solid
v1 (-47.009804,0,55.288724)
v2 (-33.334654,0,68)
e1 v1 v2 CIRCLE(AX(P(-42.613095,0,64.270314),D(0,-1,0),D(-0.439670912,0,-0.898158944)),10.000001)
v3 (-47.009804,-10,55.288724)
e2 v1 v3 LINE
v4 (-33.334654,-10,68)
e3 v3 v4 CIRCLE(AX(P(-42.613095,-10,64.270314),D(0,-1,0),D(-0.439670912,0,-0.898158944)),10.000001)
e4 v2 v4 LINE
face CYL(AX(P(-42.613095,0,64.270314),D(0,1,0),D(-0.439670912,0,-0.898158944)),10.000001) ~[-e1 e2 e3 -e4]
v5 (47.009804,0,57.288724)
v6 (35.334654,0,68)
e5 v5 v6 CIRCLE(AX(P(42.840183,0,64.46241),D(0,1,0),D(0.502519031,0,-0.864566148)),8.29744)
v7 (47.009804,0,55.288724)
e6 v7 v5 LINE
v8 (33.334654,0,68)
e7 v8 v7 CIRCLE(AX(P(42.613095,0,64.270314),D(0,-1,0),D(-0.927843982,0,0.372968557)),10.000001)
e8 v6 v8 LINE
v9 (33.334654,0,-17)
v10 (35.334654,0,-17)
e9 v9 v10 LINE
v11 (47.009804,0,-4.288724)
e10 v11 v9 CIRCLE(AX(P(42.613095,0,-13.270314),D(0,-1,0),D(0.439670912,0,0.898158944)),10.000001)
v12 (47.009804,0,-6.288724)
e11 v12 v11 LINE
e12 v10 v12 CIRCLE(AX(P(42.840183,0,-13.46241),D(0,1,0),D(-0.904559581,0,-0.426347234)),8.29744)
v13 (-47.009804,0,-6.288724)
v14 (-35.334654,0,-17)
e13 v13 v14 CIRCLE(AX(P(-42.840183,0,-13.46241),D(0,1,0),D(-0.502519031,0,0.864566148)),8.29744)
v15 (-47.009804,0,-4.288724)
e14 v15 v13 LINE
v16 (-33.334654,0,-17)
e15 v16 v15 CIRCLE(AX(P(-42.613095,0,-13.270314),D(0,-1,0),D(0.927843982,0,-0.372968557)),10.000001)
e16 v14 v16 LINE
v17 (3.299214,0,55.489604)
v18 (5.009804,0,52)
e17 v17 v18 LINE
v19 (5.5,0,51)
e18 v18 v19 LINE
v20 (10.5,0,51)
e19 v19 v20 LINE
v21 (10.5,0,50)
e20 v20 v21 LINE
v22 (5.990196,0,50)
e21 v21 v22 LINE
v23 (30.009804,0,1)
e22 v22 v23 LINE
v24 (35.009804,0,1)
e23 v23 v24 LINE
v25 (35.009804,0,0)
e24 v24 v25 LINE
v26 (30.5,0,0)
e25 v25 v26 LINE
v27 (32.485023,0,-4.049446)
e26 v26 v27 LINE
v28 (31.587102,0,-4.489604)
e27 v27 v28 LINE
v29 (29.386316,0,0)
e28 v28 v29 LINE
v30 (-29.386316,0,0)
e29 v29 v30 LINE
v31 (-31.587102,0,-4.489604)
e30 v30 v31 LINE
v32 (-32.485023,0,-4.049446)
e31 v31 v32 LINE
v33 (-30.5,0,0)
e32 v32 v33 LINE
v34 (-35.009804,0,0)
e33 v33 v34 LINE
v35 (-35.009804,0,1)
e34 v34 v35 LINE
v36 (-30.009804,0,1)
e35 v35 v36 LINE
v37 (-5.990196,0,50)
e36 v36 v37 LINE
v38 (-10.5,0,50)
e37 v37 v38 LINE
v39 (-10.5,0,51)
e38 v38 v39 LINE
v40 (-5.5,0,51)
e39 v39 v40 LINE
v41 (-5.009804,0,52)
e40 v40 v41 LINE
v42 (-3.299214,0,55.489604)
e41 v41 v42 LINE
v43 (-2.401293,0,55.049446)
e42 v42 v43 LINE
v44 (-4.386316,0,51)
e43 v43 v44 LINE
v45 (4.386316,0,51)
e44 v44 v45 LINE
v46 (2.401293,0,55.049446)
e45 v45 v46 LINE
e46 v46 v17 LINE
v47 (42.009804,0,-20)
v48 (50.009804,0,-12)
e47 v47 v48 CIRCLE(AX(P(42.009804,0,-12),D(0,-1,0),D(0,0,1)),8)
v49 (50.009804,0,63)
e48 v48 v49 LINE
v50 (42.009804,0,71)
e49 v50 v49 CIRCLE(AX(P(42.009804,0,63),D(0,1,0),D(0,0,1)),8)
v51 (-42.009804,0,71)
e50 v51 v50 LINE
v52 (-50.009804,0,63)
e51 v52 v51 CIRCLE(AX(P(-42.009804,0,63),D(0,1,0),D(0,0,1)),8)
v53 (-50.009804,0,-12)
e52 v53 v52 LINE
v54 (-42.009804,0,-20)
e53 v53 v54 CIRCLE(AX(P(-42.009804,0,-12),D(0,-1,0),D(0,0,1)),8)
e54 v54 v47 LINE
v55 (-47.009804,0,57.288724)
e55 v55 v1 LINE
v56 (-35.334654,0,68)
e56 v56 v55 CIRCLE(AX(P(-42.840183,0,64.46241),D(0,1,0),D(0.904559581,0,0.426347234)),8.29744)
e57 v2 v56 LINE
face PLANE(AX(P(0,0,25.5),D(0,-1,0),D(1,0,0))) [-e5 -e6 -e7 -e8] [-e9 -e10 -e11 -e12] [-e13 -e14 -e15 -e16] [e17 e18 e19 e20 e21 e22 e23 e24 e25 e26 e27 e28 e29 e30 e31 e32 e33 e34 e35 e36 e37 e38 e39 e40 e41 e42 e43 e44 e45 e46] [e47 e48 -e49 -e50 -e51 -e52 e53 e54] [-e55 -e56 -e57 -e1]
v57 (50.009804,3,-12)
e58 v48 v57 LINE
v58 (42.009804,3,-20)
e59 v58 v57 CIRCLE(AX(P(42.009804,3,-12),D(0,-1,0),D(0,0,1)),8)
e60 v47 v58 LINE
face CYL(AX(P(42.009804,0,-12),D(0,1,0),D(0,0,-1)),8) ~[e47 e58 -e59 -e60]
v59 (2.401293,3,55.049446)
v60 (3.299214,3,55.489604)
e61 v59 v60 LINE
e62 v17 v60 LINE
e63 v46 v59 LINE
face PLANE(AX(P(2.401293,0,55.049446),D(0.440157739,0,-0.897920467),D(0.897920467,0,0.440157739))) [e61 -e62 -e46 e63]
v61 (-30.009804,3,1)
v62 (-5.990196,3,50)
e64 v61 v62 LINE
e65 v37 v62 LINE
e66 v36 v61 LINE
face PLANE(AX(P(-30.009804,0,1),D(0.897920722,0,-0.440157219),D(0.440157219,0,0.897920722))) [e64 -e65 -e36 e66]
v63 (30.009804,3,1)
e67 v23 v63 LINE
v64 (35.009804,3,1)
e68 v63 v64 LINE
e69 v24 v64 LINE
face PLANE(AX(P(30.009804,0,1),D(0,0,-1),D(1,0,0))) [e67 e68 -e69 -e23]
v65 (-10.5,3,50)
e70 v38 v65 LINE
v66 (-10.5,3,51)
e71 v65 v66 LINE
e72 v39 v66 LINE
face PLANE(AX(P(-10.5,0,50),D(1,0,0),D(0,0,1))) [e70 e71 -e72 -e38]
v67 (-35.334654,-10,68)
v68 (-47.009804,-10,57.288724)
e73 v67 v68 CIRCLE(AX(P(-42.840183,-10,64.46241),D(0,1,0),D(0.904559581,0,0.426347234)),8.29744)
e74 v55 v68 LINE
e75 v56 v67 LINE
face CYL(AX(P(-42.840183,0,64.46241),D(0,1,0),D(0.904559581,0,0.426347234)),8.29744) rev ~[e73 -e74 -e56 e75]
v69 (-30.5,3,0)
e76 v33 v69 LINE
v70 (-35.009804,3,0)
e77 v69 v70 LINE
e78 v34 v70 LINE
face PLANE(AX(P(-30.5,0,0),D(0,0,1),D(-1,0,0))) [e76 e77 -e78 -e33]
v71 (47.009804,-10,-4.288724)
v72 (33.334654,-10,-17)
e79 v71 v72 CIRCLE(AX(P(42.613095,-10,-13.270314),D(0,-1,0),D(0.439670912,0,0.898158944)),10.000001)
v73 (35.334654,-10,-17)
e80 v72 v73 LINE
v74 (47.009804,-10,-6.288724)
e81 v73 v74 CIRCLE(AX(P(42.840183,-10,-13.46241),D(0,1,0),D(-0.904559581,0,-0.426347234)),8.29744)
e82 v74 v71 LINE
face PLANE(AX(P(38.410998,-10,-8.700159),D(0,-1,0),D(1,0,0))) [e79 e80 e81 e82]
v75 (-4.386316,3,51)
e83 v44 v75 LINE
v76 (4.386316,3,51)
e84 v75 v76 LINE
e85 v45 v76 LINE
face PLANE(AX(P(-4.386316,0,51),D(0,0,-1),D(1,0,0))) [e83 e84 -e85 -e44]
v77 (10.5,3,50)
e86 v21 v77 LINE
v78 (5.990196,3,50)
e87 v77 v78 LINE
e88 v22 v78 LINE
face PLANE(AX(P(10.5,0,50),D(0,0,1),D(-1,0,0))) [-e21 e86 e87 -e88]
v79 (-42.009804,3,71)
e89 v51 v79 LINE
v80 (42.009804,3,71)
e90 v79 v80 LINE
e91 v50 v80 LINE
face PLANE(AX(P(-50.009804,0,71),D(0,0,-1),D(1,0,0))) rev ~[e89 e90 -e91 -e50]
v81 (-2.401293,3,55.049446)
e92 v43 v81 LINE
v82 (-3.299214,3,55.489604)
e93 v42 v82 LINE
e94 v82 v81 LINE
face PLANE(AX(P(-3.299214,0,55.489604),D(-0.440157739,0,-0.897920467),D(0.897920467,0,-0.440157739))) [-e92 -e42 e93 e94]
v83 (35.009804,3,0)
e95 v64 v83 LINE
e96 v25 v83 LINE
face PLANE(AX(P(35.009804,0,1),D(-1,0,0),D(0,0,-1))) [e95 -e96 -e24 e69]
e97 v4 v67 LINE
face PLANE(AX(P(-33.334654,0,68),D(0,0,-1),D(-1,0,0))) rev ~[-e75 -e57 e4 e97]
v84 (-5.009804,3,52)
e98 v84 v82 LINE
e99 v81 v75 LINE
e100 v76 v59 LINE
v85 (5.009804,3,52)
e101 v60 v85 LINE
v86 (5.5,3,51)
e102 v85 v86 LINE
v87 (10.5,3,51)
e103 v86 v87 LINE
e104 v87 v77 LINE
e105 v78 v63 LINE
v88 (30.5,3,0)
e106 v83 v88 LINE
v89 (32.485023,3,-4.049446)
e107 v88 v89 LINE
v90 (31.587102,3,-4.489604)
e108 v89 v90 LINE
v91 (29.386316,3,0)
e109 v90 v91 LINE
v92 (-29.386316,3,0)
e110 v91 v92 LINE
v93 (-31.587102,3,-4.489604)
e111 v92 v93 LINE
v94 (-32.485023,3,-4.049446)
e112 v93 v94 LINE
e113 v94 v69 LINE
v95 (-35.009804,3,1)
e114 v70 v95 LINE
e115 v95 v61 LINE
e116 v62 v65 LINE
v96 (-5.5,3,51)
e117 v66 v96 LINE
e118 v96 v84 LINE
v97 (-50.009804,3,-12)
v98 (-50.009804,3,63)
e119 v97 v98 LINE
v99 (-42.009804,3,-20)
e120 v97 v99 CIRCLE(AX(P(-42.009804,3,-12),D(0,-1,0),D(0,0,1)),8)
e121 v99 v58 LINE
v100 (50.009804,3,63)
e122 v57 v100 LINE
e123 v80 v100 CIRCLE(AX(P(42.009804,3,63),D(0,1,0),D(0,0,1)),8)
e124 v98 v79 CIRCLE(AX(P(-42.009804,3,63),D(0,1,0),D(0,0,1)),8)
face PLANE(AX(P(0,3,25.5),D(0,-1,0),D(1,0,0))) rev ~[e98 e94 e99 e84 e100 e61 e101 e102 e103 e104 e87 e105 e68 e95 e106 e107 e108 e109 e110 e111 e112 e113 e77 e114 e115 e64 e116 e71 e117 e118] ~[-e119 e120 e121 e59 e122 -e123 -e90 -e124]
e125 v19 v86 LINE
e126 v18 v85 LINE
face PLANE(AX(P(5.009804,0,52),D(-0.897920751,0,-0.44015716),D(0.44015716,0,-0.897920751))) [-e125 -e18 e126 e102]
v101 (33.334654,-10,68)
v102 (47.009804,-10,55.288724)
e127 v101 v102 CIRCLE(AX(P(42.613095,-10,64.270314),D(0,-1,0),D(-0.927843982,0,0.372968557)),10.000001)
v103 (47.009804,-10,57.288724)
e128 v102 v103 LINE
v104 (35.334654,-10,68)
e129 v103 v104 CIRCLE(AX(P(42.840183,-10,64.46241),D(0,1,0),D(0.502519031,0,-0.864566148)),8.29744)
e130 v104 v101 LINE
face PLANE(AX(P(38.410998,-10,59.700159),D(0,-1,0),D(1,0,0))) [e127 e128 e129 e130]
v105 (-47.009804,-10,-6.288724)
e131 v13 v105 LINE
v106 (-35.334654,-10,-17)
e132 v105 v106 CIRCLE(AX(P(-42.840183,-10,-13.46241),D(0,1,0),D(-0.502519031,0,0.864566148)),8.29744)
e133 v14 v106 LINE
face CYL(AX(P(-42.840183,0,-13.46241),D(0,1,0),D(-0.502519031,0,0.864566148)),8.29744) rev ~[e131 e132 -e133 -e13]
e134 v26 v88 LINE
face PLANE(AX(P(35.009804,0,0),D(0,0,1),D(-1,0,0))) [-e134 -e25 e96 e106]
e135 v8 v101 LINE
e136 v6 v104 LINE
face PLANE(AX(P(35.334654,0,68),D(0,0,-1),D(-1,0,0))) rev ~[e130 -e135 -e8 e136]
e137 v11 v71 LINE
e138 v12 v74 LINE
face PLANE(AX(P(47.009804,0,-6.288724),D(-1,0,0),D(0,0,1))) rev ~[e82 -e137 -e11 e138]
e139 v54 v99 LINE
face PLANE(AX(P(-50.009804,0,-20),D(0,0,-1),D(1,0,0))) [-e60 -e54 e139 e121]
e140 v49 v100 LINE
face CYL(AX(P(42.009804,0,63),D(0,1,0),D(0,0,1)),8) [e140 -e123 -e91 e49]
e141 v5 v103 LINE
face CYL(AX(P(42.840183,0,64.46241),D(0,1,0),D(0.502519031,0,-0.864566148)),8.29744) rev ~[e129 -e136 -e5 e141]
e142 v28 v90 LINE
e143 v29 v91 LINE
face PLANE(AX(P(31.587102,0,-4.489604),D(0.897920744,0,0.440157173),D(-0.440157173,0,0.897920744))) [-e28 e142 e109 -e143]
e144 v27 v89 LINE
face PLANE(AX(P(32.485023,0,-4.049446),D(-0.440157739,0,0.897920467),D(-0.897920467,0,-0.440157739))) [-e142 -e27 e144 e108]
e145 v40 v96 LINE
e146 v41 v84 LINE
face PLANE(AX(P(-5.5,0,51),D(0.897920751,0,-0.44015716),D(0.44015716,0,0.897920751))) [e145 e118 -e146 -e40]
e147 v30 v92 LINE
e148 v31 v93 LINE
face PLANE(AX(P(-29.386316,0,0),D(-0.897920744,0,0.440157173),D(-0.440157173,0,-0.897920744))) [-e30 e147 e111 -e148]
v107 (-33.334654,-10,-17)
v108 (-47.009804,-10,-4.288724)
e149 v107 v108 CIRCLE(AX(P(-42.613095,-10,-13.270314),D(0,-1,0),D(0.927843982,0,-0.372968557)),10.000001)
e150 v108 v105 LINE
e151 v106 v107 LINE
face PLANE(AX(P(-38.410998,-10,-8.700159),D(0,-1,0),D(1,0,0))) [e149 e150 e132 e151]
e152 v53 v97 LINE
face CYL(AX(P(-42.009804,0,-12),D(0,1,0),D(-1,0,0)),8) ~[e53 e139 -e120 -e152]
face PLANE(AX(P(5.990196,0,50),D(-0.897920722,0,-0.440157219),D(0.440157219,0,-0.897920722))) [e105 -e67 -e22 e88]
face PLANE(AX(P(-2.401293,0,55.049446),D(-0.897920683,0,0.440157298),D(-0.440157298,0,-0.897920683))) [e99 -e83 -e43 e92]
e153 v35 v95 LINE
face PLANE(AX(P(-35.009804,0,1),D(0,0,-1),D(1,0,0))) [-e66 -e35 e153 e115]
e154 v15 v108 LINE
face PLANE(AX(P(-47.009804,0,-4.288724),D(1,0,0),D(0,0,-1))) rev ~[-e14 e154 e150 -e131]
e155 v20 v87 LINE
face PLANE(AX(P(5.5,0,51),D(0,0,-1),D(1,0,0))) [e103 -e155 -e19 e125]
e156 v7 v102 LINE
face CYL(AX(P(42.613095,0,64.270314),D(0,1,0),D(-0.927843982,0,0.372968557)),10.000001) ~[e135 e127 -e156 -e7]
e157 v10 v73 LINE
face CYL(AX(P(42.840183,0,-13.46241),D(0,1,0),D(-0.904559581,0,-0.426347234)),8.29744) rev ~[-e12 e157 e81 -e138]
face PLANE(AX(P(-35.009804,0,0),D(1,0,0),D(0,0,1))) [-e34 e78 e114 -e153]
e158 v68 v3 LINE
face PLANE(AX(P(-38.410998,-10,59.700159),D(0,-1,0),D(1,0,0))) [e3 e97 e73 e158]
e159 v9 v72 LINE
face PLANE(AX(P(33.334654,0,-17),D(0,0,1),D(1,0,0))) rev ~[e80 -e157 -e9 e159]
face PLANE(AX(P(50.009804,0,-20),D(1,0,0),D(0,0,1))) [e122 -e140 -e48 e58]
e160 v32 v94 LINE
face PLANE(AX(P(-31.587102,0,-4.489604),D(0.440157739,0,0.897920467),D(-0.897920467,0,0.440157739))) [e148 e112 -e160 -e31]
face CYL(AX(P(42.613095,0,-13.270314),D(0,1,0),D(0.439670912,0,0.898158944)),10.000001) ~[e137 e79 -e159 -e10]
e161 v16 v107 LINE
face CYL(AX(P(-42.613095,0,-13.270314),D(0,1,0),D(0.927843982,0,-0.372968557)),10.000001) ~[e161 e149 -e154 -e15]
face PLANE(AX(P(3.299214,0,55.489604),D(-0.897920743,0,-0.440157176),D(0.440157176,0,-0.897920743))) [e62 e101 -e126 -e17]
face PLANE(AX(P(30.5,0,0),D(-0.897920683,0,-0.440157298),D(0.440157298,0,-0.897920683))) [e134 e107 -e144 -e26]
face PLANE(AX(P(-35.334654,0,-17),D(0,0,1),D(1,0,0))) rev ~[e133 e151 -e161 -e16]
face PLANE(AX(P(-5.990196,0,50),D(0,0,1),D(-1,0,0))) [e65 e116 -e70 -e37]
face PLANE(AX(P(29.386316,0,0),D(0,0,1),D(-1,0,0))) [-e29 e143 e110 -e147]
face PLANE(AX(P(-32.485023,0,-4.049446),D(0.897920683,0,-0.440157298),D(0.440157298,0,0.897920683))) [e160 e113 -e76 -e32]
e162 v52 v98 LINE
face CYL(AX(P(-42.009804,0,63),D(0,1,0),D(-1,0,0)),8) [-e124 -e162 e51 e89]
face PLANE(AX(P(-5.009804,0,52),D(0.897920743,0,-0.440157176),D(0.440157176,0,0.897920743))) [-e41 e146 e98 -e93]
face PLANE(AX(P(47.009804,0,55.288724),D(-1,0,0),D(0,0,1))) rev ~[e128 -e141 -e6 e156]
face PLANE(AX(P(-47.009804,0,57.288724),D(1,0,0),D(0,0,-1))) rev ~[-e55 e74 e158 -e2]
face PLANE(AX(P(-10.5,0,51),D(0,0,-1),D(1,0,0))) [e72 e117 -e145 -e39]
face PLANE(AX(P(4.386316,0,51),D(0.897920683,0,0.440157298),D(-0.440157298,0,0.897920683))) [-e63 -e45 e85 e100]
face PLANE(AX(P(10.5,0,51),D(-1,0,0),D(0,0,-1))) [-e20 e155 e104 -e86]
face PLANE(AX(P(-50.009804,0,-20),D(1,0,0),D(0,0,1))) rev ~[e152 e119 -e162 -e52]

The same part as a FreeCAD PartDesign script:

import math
import FreeCAD as App
import Part
import Sketcher

V = App.Vector


def edges_at(feature, points):
    """Names of the edges that pass closest to the given points."""
    edges = feature.Shape.Edges
    near = lambda p: min(range(len(edges)), key=lambda i: edges[i].distToShape(Part.Vertex(*p))[0])
    return sorted({f"Edge{near(p) + 1}" for p in points})


def add_polygon(sketch, points):
    """Adds a closed chain of lines whose ends are joined by coincident constraints."""
    first, n = sketch.GeometryCount, len(points)
    for a, b in zip(points, points[1:] + points[:1]):
        sketch.addGeometry(Part.LineSegment(App.Vector(*a, 0), App.Vector(*b, 0)), False)
    for i in range(n):
        sketch.addConstraint(Sketcher.Constraint("Coincident", first + i, 2, first + (i + 1) % n, 1))

doc = App.newDocument("Part")
body = doc.addObject("PartDesign::Body", "Body")

# Sketch on XZ plane
sketch1 = doc.addObject("Sketcher::SketchObject", "Sketch")
body.addObject(sketch1)
sketch1.AttachmentSupport = (doc.XZ_Plane, [""])
sketch1.MapMode = "FlatFace"
add_polygon(sketch1, [(-50, 71), (-50, -20), (50, -20), (50, 71)])  # lines 0-3
add_polygon(sketch1, [(29.4, 0), (-29.4, 0), (-31.6, -4.5), (-32.5, -4), (-30.5, 0), (-35, 0), (-35, 1), (-30, 1), (-6, 50), (-10.5, 50), (-10.5, 51), (-5.5, 51), (-5, 52), (-3.3, 55.5), (-2.4, 55), (-4.4, 51), (4.4, 51), (2.4, 55), (3.3, 55.5), (5, 52), (5.5, 51), (10.5, 51), (10.5, 50), (6, 50), (30, 1), (35, 1), (35, 0), (30.5, 0), (32.5, -4), (31.6, -4.5)])  # lines 4-33
sketch1.addConstraint([
    Sketcher.Constraint("Vertical", 0),
    Sketcher.Constraint("Horizontal", 1),
    Sketcher.Constraint("Vertical", 2),
    Sketcher.Constraint("Horizontal", 3),
    Sketcher.Constraint("Horizontal", 4),
    Sketcher.Constraint("Horizontal", 8),
    Sketcher.Constraint("Vertical", 9),
    Sketcher.Constraint("Horizontal", 10),
    Sketcher.Constraint("Horizontal", 12),
    Sketcher.Constraint("Vertical", 13),
    Sketcher.Constraint("Horizontal", 14),
    Sketcher.Constraint("Horizontal", 19),
    Sketcher.Constraint("Horizontal", 24),
    Sketcher.Constraint("Vertical", 25),
    Sketcher.Constraint("Horizontal", 26),
    Sketcher.Constraint("Horizontal", 28),
    Sketcher.Constraint("Vertical", 29),
    Sketcher.Constraint("Horizontal", 30),
    Sketcher.Constraint("Symmetric", 8, 2, 29, 2, -1, 1),
    Sketcher.Constraint("Symmetric", 4, 2, 33, 2, -1, 1),
    Sketcher.Constraint("Symmetric", 17, 2, 20, 2, -2),
    Sketcher.Constraint("Symmetric", 16, 2, 21, 2, -2),
    Sketcher.Constraint("Symmetric", 15, 2, 22, 2, -2),
    Sketcher.Constraint("Symmetric", 14, 2, 23, 2, -2),
    Sketcher.Constraint("Symmetric", 12, 2, 25, 2, -2),
    Sketcher.Constraint("Symmetric", 10, 2, 27, 2, -2),
    Sketcher.Constraint("Symmetric", 7, 2, 30, 2, -2),
    Sketcher.Constraint("Symmetric", 6, 2, 31, 2, -2),
    Sketcher.Constraint("Symmetric", 5, 2, 32, 2, -2),
    Sketcher.Constraint("Perpendicular", 5, 6),
    Sketcher.Constraint("Perpendicular", 6, 7),
    Sketcher.Constraint("Parallel", 7, 11),
    Sketcher.Constraint("Parallel", 11, 15),
    Sketcher.Constraint("Parallel", 15, 16),
    Sketcher.Constraint("Perpendicular", 16, 17),
    Sketcher.Constraint("Perpendicular", 17, 18),
    Sketcher.Constraint("Perpendicular", 20, 21),
    Sketcher.Constraint("Parallel", 23, 27),
    Sketcher.Constraint("Horizontal", 14, 2, 18, 2),
    Sketcher.Constraint("Equal", 8, 12),
    Sketcher.Constraint("Equal", 10, 14),
    Sketcher.Constraint("Equal", 9, 13),
    Sketcher.Constraint("Equal", 6, 17),
    Sketcher.Constraint("Equal", 7, 18),
    Sketcher.Constraint("DistanceX", 10, 1, 10, 2, 5.0),
    Sketcher.Constraint("DistanceY", 0, 2, 0, 1, 91.0),
    Sketcher.Constraint("DistanceY", 9, 1, 9, 2, 1.0),
    Sketcher.Constraint("Distance", 5, 5.0),
    Sketcher.Constraint("Distance", 6, 1.000001),
    Sketcher.Constraint("DistanceY", 0, 2, -1, 1, 20.0),
    Sketcher.Constraint("DistanceY", -1, 1, 11, 2, 50.0),
    Sketcher.Constraint("DistanceY", -1, 1, 15, 2, 52.0),
    Sketcher.Constraint("DistanceX", 0, 2, 8, 2, 15.0),
    Sketcher.Constraint("DistanceX", 7, 2, 12, 2, 20.0),
    Sketcher.Constraint("DistanceX", 3, 2, 15, 2, 45.0),
    Sketcher.Constraint("DistanceX", 27, 2, 1, 2, 20.0),
    Sketcher.Constraint("DistanceX", 7, 2, -1, 1, 30.5),
])
pad1 = doc.addObject("PartDesign::Pad", "Pad")
body.addObject(pad1)
pad1.Profile = sketch1
pad1.Length = 3
pad1.Reversed = True

# Sketch on XZ plane
sketch2 = doc.addObject("Sketcher::SketchObject", "Sketch001")
body.addObject(sketch2)
sketch2.AttachmentSupport = (doc.XZ_Plane, [""])
sketch2.MapMode = "FlatFace"
sketch2.addGeometry([
    Part.LineSegment(V(-35.3, -17, 0), V(-33.3, -17, 0)),  # 0
    Part.ArcOfCircle(Part.Circle(V(-42.6, -13.3, 0), V(0, 0, 1), 10), math.radians(-22), math.radians(116)),  # 1
    Part.LineSegment(V(-47, -4.3, 0), V(-47, -6.3, 0)),  # 2
    Part.ArcOfCircle(Part.Circle(V(-42.8, -13.5, 0), V(0, 0, 1), 8.3), math.radians(-25), math.radians(120)),  # 3
    Part.ArcOfCircle(Part.Circle(V(-42.6, 64.3, 0), V(0, 0, 1), 10), math.radians(-116), math.radians(22)),  # 4
    Part.LineSegment(V(-33.3, 68, 0), V(-35.3, 68, 0)),  # 5
    Part.ArcOfCircle(Part.Circle(V(-42.8, 64.5, 0), V(0, 0, 1), 8.3), math.radians(-120), math.radians(25)),  # 6
    Part.LineSegment(V(-47, 57.3, 0), V(-47, 55.3, 0)),  # 7
    Part.LineSegment(V(35.3, 68, 0), V(33.3, 68, 0)),  # 8
    Part.ArcOfCircle(Part.Circle(V(42.6, 64.3, 0), V(0, 0, 1), 10), math.radians(158), math.radians(296)),  # 9
    Part.LineSegment(V(47, 55.3, 0), V(47, 57.3, 0)),  # 10
    Part.ArcOfCircle(Part.Circle(V(42.8, 64.5, 0), V(0, 0, 1), 8.3), math.radians(155), math.radians(300)),  # 11
    Part.ArcOfCircle(Part.Circle(V(42.6, -13.3, 0), V(0, 0, 1), 10), math.radians(64), math.radians(202)),  # 12
    Part.LineSegment(V(33.3, -17, 0), V(35.3, -17, 0)),  # 13
    Part.ArcOfCircle(Part.Circle(V(42.8, -13.5, 0), V(0, 0, 1), 8.3), math.radians(60), math.radians(205)),  # 14
    Part.LineSegment(V(47, -6.3, 0), V(47, -4.3, 0)),  # 15
], False)
sketch2.addConstraint([
    Sketcher.Constraint("Coincident", 0, 2, 1, 1),
    Sketcher.Constraint("Coincident", 1, 2, 2, 1),
    Sketcher.Constraint("Coincident", 2, 2, 3, 2),
    Sketcher.Constraint("Coincident", 3, 1, 0, 1),
    Sketcher.Constraint("Coincident", 4, 2, 5, 1),
    Sketcher.Constraint("Coincident", 5, 2, 6, 2),
    Sketcher.Constraint("Coincident", 6, 1, 7, 1),
    Sketcher.Constraint("Coincident", 7, 2, 4, 1),
    Sketcher.Constraint("Coincident", 8, 2, 9, 1),
    Sketcher.Constraint("Coincident", 9, 2, 10, 1),
    Sketcher.Constraint("Coincident", 10, 2, 11, 2),
    Sketcher.Constraint("Coincident", 11, 1, 8, 1),
    Sketcher.Constraint("Coincident", 12, 2, 13, 1),
    Sketcher.Constraint("Coincident", 13, 2, 14, 2),
    Sketcher.Constraint("Coincident", 14, 1, 15, 1),
    Sketcher.Constraint("Coincident", 15, 2, 12, 1),
    Sketcher.Constraint("Horizontal", 0),
    Sketcher.Constraint("Vertical", 2),
    Sketcher.Constraint("Horizontal", 5),
    Sketcher.Constraint("Vertical", 7),
    Sketcher.Constraint("Horizontal", 8),
    Sketcher.Constraint("Vertical", 10),
    Sketcher.Constraint("Horizontal", 13),
    Sketcher.Constraint("Vertical", 15),
    Sketcher.Constraint("Equal", 1, 4),
    Sketcher.Constraint("Equal", 3, 6),
    Sketcher.Constraint("Equal", 4, 9),
    Sketcher.Constraint("Equal", 6, 11),
    Sketcher.Constraint("Equal", 9, 12),
    Sketcher.Constraint("Equal", 11, 14),
    Sketcher.Constraint("Symmetric", 4, 3, 9, 3, -2),
    Sketcher.Constraint("Symmetric", 6, 3, 11, 3, -2),
    Sketcher.Constraint("Symmetric", 1, 3, 12, 3, -2),
    Sketcher.Constraint("Symmetric", 3, 3, 14, 3, -2),
    Sketcher.Constraint("Horizontal", 5, 2, 8, 2),
    Sketcher.Constraint("Horizontal", 7, 2, 9, 2),
    Sketcher.Constraint("Horizontal", 3, 1, 12, 2),
    Sketcher.Constraint("Horizontal", 2, 2, 14, 1),
    Sketcher.Constraint("Vertical", 1, 3, 4, 3),
    Sketcher.Constraint("Vertical", 3, 3, 6, 3),
    Sketcher.Constraint("Vertical", 0, 2, 4, 2),
    Sketcher.Constraint("Vertical", 3, 1, 5, 2),
    Sketcher.Constraint("Vertical", 2, 2, 6, 1),
    Sketcher.Constraint("Equal", 13, 2),
    Sketcher.Constraint("Radius", 1, 10.000001),
    Sketcher.Constraint("DistanceX", 0, 1, 0, 2, 2.0),
    Sketcher.Constraint("DistanceY", 0, 2, -1, 1, 17.0),
    Sketcher.Constraint("DistanceY", -1, 1, 4, 2, 68.0),
    Sketcher.Constraint("Radius", 3, 8.29744),
    Sketcher.Constraint("DistanceY", 3, 3, -1, 1, 13.46241),
    Sketcher.Constraint("DistanceX", 3, 3, 1, 3, 0.227088),
    Sketcher.Constraint("DistanceX", 4, 3, 9, 3, 85.226189),
])
pad2 = doc.addObject("PartDesign::Pad", "Pad001")
body.addObject(pad2)
pad2.Profile = sketch2
pad2.Length = 10
doc.recompute()

fillet = doc.addObject("PartDesign::Fillet", "Fillet")
body.addObject(fillet)
fillet.Base = (pad2, edges_at(pad2, [
    (-50.01, 1.5, 71),
    (50.01, 1.5, 71),
    (50.01, 1.5, -20),
    (-50.01, 1.5, -20),
]))
fillet.Radius = 8

doc.recompute()
